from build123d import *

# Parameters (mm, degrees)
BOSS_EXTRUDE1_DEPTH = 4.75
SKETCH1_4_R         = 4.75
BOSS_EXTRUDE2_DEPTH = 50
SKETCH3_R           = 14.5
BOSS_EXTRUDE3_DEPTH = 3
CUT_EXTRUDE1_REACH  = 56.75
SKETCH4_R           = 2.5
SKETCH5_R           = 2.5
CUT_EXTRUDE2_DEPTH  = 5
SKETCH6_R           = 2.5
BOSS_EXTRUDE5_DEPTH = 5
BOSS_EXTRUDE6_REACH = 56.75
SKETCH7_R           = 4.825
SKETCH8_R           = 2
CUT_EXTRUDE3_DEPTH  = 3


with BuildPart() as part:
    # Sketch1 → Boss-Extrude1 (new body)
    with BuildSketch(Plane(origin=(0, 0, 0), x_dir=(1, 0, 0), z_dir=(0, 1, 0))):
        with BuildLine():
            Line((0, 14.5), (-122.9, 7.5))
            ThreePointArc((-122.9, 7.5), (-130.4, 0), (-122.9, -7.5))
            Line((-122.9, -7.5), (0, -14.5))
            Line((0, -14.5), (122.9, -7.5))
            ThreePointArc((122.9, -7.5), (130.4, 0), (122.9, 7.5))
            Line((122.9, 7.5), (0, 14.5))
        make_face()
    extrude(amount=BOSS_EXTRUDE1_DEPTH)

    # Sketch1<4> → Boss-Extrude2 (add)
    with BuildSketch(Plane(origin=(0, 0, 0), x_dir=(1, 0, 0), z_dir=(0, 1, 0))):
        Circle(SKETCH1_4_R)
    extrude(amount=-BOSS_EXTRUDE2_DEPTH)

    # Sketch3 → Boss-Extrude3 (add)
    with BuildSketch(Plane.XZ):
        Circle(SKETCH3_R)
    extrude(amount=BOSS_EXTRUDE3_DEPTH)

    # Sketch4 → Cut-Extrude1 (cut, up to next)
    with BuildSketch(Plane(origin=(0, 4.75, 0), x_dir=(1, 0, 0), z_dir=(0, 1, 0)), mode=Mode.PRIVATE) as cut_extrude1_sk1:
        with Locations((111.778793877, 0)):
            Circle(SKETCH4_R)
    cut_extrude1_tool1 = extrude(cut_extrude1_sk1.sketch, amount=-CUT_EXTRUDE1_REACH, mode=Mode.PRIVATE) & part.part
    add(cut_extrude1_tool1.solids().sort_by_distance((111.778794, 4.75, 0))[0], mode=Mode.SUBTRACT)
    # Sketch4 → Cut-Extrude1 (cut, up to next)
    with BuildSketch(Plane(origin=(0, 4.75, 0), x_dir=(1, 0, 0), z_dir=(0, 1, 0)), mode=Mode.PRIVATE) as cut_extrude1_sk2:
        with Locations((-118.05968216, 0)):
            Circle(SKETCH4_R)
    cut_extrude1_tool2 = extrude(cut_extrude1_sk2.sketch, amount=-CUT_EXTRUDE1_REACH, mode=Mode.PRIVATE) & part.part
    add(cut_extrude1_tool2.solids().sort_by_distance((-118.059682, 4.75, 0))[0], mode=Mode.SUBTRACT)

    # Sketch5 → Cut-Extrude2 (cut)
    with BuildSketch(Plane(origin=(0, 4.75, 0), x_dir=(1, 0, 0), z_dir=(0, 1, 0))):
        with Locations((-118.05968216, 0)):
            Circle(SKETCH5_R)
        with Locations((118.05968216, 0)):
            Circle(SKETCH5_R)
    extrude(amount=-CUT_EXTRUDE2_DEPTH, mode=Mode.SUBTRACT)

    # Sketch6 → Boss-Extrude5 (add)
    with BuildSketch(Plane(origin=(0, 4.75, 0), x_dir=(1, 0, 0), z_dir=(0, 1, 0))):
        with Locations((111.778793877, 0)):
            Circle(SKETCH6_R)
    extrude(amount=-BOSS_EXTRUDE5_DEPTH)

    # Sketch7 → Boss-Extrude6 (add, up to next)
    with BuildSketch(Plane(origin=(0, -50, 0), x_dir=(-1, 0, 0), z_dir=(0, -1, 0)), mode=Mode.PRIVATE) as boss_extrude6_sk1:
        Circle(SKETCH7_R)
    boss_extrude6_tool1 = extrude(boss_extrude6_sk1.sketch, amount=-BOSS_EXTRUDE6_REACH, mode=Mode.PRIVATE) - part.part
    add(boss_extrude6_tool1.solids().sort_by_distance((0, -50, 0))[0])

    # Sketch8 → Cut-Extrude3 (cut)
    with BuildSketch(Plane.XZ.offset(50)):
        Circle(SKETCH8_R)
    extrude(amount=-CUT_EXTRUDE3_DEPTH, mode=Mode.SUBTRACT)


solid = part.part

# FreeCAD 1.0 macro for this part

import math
import FreeCAD as App
import Part
import Sketcher

V = App.Vector

doc = App.newDocument("Part")
params = doc.addObject("Spreadsheet::Sheet", "Params")
for row, (alias, value) in enumerate([
    ("sketch1_radius", "7.5 mm"),
    ("pad1_length", "4.75 mm"),
    ("sketch2_diameter", "9.5 mm"),
    ("pad2_length", "50 mm"),
    ("sketch3_diameter", "29 mm"),
    ("pad3_length", "3 mm"),
    ("sketch4_diameter", "5 mm"),
    ("sketch5_diameter", "5 mm"),
    ("sketch6_diameter", "5 mm"),
    ("pocket3_length", "5 mm"),
    ("sketch7_diameter", "5 mm"),
    ("pad4_length", "5 mm"),
    ("sketch8_diameter", "9.65 mm"),
    ("sketch9_diameter", "4 mm"),
    ("pocket4_length", "3 mm"),
], start=1):
    params.set(f"A{row}", alias)
    params.set(f"B{row}", "=" + value)
    params.setAlias(f"B{row}", alias)

body = doc.addObject("PartDesign::Body", "Body")

# Sketch on XZ plane
sketch1 = body.newObject("Sketcher::SketchObject", "Sketch")
sketch1.AttachmentSupport = (doc.getObject("XZ_Plane"), [""])
sketch1.MapMode = "FlatFace"
sketch1.addGeometry([
    Part.LineSegment(V(0, -14.5, 0), V(-122.9, -7.5, 0)),  # 0
    Part.ArcOfCircle(Part.Circle(V(-122.9, 0, 0), V(0, 0, 1), 7.5), math.radians(90), math.radians(270)),  # 1
    Part.LineSegment(V(-122.9, 7.5, 0), V(0, 14.5, 0)),  # 2
    Part.LineSegment(V(0, 14.5, 0), V(122.9, 7.5, 0)),  # 3
    Part.ArcOfCircle(Part.Circle(V(122.9, 0, 0), V(0, 0, 1), 7.5), math.radians(-90), math.radians(90)),  # 4
    Part.LineSegment(V(122.9, -7.5, 0), V(0, -14.5, 0)),  # 5
], False)
sketch1.addConstraint([
    Sketcher.Constraint("Coincident", 0, 2, 1, 2),
    Sketcher.Constraint("Coincident", 1, 1, 2, 1),
    Sketcher.Constraint("Coincident", 2, 2, 3, 1),
    Sketcher.Constraint("Coincident", 3, 2, 4, 2),
    Sketcher.Constraint("Coincident", 4, 1, 5, 1),
    Sketcher.Constraint("Coincident", 5, 2, 0, 1),
    Sketcher.Constraint("Equal", 1, 4),
    Sketcher.Constraint("Symmetric", 1, 3, 4, 3, -1, 1),
    Sketcher.Constraint("Symmetric", 2, 2, 5, 2, -1, 1),
    Sketcher.Constraint("Symmetric", 1, 1, 3, 2, -2),
    Sketcher.Constraint("PointOnObject", 2, 2, -2),
    Sketcher.Constraint("Parallel", 0, 3),
    Sketcher.Constraint("Parallel", 2, 5),
    Sketcher.Constraint("Vertical", 1, 3, 0, 2),
    Sketcher.Constraint("Radius", 1, 7.5),
    Sketcher.Constraint("DistanceY", 1, 1, 2, 2, 7.0),
    Sketcher.Constraint("DistanceX", 1, 3, -1, 1, 122.9),
])
sketch1.setExpression("Constraints[14]", "Params.sketch1_radius")
pad1 = body.newObject("PartDesign::Pad", "Pad")
pad1.Profile = sketch1
pad1.setExpression("Length", "Params.pad1_length")
pad1.Reversed = True

# Sketch on XZ plane
sketch2 = body.newObject("Sketcher::SketchObject", "Sketch001")
sketch2.AttachmentSupport = (doc.getObject("XZ_Plane"), [""])
sketch2.MapMode = "FlatFace"
sketch2.addGeometry(Part.Circle(V(0, 0, 0), V(0, 0, 1), 4.75), False)
sketch2.addConstraint([
    Sketcher.Constraint("Coincident", 0, 3, -1, 1),
    Sketcher.Constraint("Diameter", 0, 9.5),
])
sketch2.setExpression("Constraints[1]", "Params.sketch2_diameter")
pad2 = body.newObject("PartDesign::Pad", "Pad001")
pad2.Profile = sketch2
pad2.setExpression("Length", "Params.pad2_length")

# Sketch on XZ plane
sketch3 = body.newObject("Sketcher::SketchObject", "Sketch002")
sketch3.AttachmentSupport = (doc.getObject("XZ_Plane"), [""])
sketch3.MapMode = "FlatFace"
sketch3.addGeometry(Part.Circle(V(0, 0, 0), V(0, 0, 1), 14.5), False)
sketch3.addConstraint([
    Sketcher.Constraint("Coincident", 0, 3, -1, 1),
    Sketcher.Constraint("Diameter", 0, 29.0),
])
sketch3.setExpression("Constraints[1]", "Params.sketch3_diameter")
pad3 = body.newObject("PartDesign::Pad", "Pad002")
pad3.Profile = sketch3
pad3.setExpression("Length", "Params.pad3_length")

# Sketch on XZ plane
sketch4 = body.newObject("Sketcher::SketchObject", "Sketch003")
sketch4.AttachmentSupport = (doc.getObject("XZ_Plane"), [""])
sketch4.MapMode = "FlatFace"
sketch4.AttachmentOffset = App.Placement(V(0, 0, -4.75), App.Rotation())
sketch4.addGeometry(Part.Circle(V(111.778794, 0, 0), V(0, 0, 1), 2.5), False)
sketch4.addConstraint([
    Sketcher.Constraint("PointOnObject", 0, 3, -1),
    Sketcher.Constraint("Diameter", 0, 5.0),
    Sketcher.Constraint("DistanceX", -1, 1, 0, 3, 111.778794),
])
sketch4.setExpression("Constraints[1]", "Params.sketch4_diameter")
pocket1 = body.newObject("PartDesign::Pocket", "Pocket")
pocket1.Profile = sketch4
pocket1.Type = "UpToFirst"
pocket1.Reversed = True

# Sketch on XZ plane
sketch5 = body.newObject("Sketcher::SketchObject", "Sketch004")
sketch5.AttachmentSupport = (doc.getObject("XZ_Plane"), [""])
sketch5.MapMode = "FlatFace"
sketch5.AttachmentOffset = App.Placement(V(0, 0, -4.75), App.Rotation())
sketch5.addGeometry(Part.Circle(V(-118.059682, 0, 0), V(0, 0, 1), 2.5), False)
sketch5.addConstraint([
    Sketcher.Constraint("PointOnObject", 0, 3, -1),
    Sketcher.Constraint("Diameter", 0, 5.0),
    Sketcher.Constraint("DistanceX", 0, 3, -1, 1, 118.059682),
])
sketch5.setExpression("Constraints[1]", "Params.sketch5_diameter")
pocket2 = body.newObject("PartDesign::Pocket", "Pocket001")
pocket2.Profile = sketch5
pocket2.Type = "UpToFirst"
pocket2.Reversed = True

# Sketch on XZ plane
sketch6 = body.newObject("Sketcher::SketchObject", "Sketch005")
sketch6.AttachmentSupport = (doc.getObject("XZ_Plane"), [""])
sketch6.MapMode = "FlatFace"
sketch6.AttachmentOffset = App.Placement(V(0, 0, -4.75), App.Rotation())
sketch6.addGeometry([
    Part.Circle(V(-118.059682, 0, 0), V(0, 0, 1), 2.5),
    Part.Circle(V(118.059682, 0, 0), V(0, 0, 1), 2.5),
], False)
sketch6.addConstraint([
    Sketcher.Constraint("Equal", 0, 1),
    Sketcher.Constraint("Symmetric", 0, 3, 1, 3, -1, 1),
    Sketcher.Constraint("PointOnObject", 0, 3, -1),
    Sketcher.Constraint("Diameter", 0, 5.0),
    Sketcher.Constraint("DistanceX", 0, 3, -1, 1, 118.059682),
])
sketch6.setExpression("Constraints[3]", "Params.sketch6_diameter")
pocket3 = body.newObject("PartDesign::Pocket", "Pocket002")
pocket3.Profile = sketch6
pocket3.setExpression("Length", "Params.pocket3_length")
pocket3.Reversed = True

# Sketch on XZ plane
sketch7 = body.newObject("Sketcher::SketchObject", "Sketch006")
sketch7.AttachmentSupport = (doc.getObject("XZ_Plane"), [""])
sketch7.MapMode = "FlatFace"
sketch7.AttachmentOffset = App.Placement(V(0, 0, -4.75), App.Rotation())
sketch7.addGeometry(Part.Circle(V(111.778794, 0, 0), V(0, 0, 1), 2.5), False)
sketch7.addConstraint([
    Sketcher.Constraint("PointOnObject", 0, 3, -1),
    Sketcher.Constraint("Diameter", 0, 5.0),
    Sketcher.Constraint("DistanceX", -1, 1, 0, 3, 111.778794),
])
sketch7.setExpression("Constraints[1]", "Params.sketch7_diameter")
pad4 = body.newObject("PartDesign::Pad", "Pad003")
pad4.Profile = sketch7
pad4.setExpression("Length", "Params.pad4_length")

# Sketch on XZ plane
sketch8 = body.newObject("Sketcher::SketchObject", "Sketch007")
sketch8.AttachmentSupport = (doc.getObject("XZ_Plane"), [""])
sketch8.MapMode = "FlatFace"
sketch8.AttachmentOffset = App.Placement(V(0, 0, 50), App.Rotation())
sketch8.addGeometry(Part.Circle(V(0, 0, 0), V(0, 0, 1), 4.825), False)
sketch8.addConstraint([
    Sketcher.Constraint("Coincident", 0, 3, -1, 1),
    Sketcher.Constraint("Diameter", 0, 9.65),
])
sketch8.setExpression("Constraints[1]", "Params.sketch8_diameter")
pad5 = body.newObject("PartDesign::Pad", "Pad004")
pad5.Profile = sketch8
pad5.Type = "UpToFirst"
pad5.Reversed = True

# Sketch on XZ plane
sketch9 = body.newObject("Sketcher::SketchObject", "Sketch008")
sketch9.AttachmentSupport = (doc.getObject("XZ_Plane"), [""])
sketch9.MapMode = "FlatFace"
sketch9.AttachmentOffset = App.Placement(V(0, 0, 50), App.Rotation())
sketch9.addGeometry(Part.Circle(V(0, 0, 0), V(0, 0, 1), 2), False)
sketch9.addConstraint([
    Sketcher.Constraint("Coincident", 0, 3, -1, 1),
    Sketcher.Constraint("Diameter", 0, 4.0),
])
sketch9.setExpression("Constraints[1]", "Params.sketch9_diameter")
pocket4 = body.newObject("PartDesign::Pocket", "Pocket003")
pocket4.Profile = sketch9
pocket4.setExpression("Length", "Params.pocket4_length")

doc.recompute()
